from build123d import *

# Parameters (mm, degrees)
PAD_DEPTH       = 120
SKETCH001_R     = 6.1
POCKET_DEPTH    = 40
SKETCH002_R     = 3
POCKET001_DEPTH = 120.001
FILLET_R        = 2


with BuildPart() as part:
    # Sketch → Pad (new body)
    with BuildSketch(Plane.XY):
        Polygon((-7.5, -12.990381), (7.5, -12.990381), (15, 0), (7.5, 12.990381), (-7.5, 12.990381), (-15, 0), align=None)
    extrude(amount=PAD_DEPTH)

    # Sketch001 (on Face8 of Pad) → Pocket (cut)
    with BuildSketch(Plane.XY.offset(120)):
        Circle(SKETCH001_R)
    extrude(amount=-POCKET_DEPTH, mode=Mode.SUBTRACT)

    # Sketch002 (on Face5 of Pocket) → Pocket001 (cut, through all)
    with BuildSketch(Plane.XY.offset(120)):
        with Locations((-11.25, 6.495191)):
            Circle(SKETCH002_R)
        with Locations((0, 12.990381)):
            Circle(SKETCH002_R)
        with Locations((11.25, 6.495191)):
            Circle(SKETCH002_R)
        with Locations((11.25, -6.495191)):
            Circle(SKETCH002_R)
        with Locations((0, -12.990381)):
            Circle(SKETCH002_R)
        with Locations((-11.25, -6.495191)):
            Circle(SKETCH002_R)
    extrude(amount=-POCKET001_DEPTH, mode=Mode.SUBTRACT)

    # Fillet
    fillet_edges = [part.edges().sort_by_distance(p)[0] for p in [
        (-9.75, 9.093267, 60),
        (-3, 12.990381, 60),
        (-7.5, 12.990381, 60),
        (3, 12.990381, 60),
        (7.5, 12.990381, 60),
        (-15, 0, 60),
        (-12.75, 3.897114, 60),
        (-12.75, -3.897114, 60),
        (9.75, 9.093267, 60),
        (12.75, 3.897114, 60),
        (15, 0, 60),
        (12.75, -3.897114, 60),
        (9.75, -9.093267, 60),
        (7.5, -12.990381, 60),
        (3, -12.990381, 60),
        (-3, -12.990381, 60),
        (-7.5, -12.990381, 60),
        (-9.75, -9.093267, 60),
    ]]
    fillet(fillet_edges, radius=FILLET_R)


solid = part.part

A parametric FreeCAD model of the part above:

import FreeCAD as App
import Part
import Sketcher
from FreeCAD import Vector
Q = App.Units.Quantity


def edges_at(feature, points):
    """Names of the edges that pass closest to the given points."""
    edges = feature.Shape.Edges
    near = lambda p: min(range(len(edges)), key=lambda i: edges[i].distToShape(Part.Vertex(*p))[0])
    return sorted({f"Edge{near(p) + 1}" for p in points})


def add_polygon(sketch, points):
    """Adds a closed chain of lines whose ends are joined by coincident constraints."""
    first, n = sketch.GeometryCount, len(points)
    for a, b in zip(points, points[1:] + points[:1]):
        sketch.addGeometry(Part.LineSegment(App.Vector(*a, 0), App.Vector(*b, 0)), False)
    for i in range(n):
        sketch.addConstraint(Sketcher.Constraint("Coincident", first + i, 2, first + (i + 1) % n, 1))

doc = App.newDocument("Part")
params = doc.addObject("Spreadsheet::Sheet", "Params")
for row, (alias, value) in enumerate([
    ("sketch1_width", "15 mm"),
    ("sketch1_length", "15 mm"),
    ("pad1_length", "120 mm"),
    ("sketch2_diameter", "12.2 mm"),
    ("pocket1_length", "40 mm"),
    ("sketch3_diameter", "6 mm"),
    ("fillet_radius", "2 mm"),
], start=1):
    params.set(f"A{row}", alias)
    params.set(f"B{row}", "=" + value)
    params.setAlias(f"B{row}", alias)

body = doc.addObject("PartDesign::Body", "Body")

# Sketch on XY plane
sketch1 = body.newObject("Sketcher::SketchObject", "Sketch")
sketch1.AttachmentSupport = (doc.getObject("XY_Plane"), [""])
sketch1.MapMode = "FlatFace"
add_polygon(sketch1, [(-8, -13), (8, -13), (15, 0), (8, 13), (-8, 13), (-15, 0)])  # lines 0-5
sketch1.addConstraint([
    Sketcher.Constraint("Horizontal", 0),
    Sketcher.Constraint("Horizontal", 3),
    Sketcher.Constraint("Symmetric", 0, 2, 3, 2, -1, 1),
    Sketcher.Constraint("Symmetric", 1, 2, 4, 2, -1, 1),
    Sketcher.Constraint("PointOnObject", 1, 2, -1),
    Sketcher.Constraint("Parallel", 2, 5),
    Sketcher.Constraint("Vertical", 0, 2, 2, 2),
    Sketcher.Constraint("DistanceX", 0, 1, 0, 2, Q("15 mm")),
    Sketcher.Constraint("Angle", 1, Q("60 deg")),
    Sketcher.Constraint("Distance", 1, Q("15 mm")),
])
sketch1.setExpression("Constraints[13]", "Params.sketch1_width")
sketch1.setExpression("Constraints[15]", "Params.sketch1_length")
pad1 = body.newObject("PartDesign::Pad", "Pad")
pad1.Profile = sketch1
pad1.setExpression("Length", "Params.pad1_length")

# Sketch on XY plane
sketch2 = body.newObject("Sketcher::SketchObject", "Sketch001")
sketch2.AttachmentSupport = (doc.getObject("XY_Plane"), [""])
sketch2.MapMode = "FlatFace"
sketch2.AttachmentOffset = App.Placement(Vector(0, 0, 120), App.Rotation())
sketch2.addGeometry(Part.Circle(Vector(0, 0, 0), Vector(0, 0, 1), 6), False)
sketch2.addConstraint([
    Sketcher.Constraint("Coincident", 0, 3, -1, 1),
    Sketcher.Constraint("Diameter", 0, Q("12.2 mm")),
])
sketch2.setExpression("Constraints[1]", "Params.sketch2_diameter")
pocket1 = body.newObject("PartDesign::Pocket", "Pocket")
pocket1.Profile = sketch2
pocket1.setExpression("Length", "Params.pocket1_length")

# Sketch on XY plane
sketch3 = body.newObject("Sketcher::SketchObject", "Sketch002")
sketch3.AttachmentSupport = (doc.getObject("XY_Plane"), [""])
sketch3.MapMode = "FlatFace"
sketch3.AttachmentOffset = App.Placement(Vector(0, 0, 120), App.Rotation())
sketch3.addGeometry([
    Part.Circle(Vector(-11.2, 6.5, 0), Vector(0, 0, 1), 3),  # 0
    Part.Circle(Vector(0, 13, 0), Vector(0, 0, 1), 3),  # 1
    Part.Circle(Vector(11.2, 6.5, 0), Vector(0, 0, 1), 3),  # 2
    Part.Circle(Vector(11.2, -6.5, 0), Vector(0, 0, 1), 3),  # 3
    Part.Circle(Vector(0, -13, 0), Vector(0, 0, 1), 3),  # 4
    Part.Circle(Vector(-11.2, -6.5, 0), Vector(0, 0, 1), 3),  # 5
], False)
sketch3.addConstraint([
    Sketcher.Constraint("Equal", 0, 1),
    Sketcher.Constraint("Equal", 1, 2),
    Sketcher.Constraint("Equal", 2, 3),
    Sketcher.Constraint("Equal", 3, 4),
    Sketcher.Constraint("Equal", 4, 5),
    Sketcher.Constraint("Symmetric", 0, 3, 3, 3, -1, 1),
    Sketcher.Constraint("Symmetric", 1, 3, 4, 3, -1, 1),
    Sketcher.Constraint("Symmetric", 2, 3, 5, 3, -1, 1),
    Sketcher.Constraint("Symmetric", 0, 3, 2, 3, -2),
    Sketcher.Constraint("PointOnObject", 1, 3, -2),
    Sketcher.Constraint("Diameter", 0, Q("6 mm")),
    Sketcher.Constraint("DistanceX", 0, 3, 2, 3, Q("22.5 mm")),
    Sketcher.Constraint("DistanceY", -1, 1, 0, 3, Q("6.495191 mm")),
    Sketcher.Constraint("DistanceY", -1, 1, 1, 3, Q("12.990381 mm")),
])
sketch3.setExpression("Constraints[10]", "Params.sketch3_diameter")
pocket2 = body.newObject("PartDesign::Pocket", "Pocket001")
pocket2.Profile = sketch3
pocket2.Type = "ThroughAll"
doc.recompute()

fillet = body.newObject("PartDesign::Fillet", "Fillet")
fillet.Base = (pocket2, edges_at(pocket2, [
    (-9.75, 9.093, 60),
    (-3, 12.99, 60),
    (-7.5, 12.99, 60),
    (3, 12.99, 60),
    (7.5, 12.99, 60),
    (-15, 0, 60),
    (-12.75, 3.897, 60),
    (-12.75, -3.897, 60),
    (9.75, 9.093, 60),
    (12.75, 3.897, 60),
    (15, 0, 60),
    (12.75, -3.897, 60),
    (9.75, -9.093, 60),
    (7.5, -12.99, 60),
    (3, -12.99, 60),
    (-3, -12.99, 60),
    (-7.5, -12.99, 60),
    (-9.75, -9.093, 60),
]))
fillet.setExpression("Radius", "Params.fillet_radius")

doc.recompute()
